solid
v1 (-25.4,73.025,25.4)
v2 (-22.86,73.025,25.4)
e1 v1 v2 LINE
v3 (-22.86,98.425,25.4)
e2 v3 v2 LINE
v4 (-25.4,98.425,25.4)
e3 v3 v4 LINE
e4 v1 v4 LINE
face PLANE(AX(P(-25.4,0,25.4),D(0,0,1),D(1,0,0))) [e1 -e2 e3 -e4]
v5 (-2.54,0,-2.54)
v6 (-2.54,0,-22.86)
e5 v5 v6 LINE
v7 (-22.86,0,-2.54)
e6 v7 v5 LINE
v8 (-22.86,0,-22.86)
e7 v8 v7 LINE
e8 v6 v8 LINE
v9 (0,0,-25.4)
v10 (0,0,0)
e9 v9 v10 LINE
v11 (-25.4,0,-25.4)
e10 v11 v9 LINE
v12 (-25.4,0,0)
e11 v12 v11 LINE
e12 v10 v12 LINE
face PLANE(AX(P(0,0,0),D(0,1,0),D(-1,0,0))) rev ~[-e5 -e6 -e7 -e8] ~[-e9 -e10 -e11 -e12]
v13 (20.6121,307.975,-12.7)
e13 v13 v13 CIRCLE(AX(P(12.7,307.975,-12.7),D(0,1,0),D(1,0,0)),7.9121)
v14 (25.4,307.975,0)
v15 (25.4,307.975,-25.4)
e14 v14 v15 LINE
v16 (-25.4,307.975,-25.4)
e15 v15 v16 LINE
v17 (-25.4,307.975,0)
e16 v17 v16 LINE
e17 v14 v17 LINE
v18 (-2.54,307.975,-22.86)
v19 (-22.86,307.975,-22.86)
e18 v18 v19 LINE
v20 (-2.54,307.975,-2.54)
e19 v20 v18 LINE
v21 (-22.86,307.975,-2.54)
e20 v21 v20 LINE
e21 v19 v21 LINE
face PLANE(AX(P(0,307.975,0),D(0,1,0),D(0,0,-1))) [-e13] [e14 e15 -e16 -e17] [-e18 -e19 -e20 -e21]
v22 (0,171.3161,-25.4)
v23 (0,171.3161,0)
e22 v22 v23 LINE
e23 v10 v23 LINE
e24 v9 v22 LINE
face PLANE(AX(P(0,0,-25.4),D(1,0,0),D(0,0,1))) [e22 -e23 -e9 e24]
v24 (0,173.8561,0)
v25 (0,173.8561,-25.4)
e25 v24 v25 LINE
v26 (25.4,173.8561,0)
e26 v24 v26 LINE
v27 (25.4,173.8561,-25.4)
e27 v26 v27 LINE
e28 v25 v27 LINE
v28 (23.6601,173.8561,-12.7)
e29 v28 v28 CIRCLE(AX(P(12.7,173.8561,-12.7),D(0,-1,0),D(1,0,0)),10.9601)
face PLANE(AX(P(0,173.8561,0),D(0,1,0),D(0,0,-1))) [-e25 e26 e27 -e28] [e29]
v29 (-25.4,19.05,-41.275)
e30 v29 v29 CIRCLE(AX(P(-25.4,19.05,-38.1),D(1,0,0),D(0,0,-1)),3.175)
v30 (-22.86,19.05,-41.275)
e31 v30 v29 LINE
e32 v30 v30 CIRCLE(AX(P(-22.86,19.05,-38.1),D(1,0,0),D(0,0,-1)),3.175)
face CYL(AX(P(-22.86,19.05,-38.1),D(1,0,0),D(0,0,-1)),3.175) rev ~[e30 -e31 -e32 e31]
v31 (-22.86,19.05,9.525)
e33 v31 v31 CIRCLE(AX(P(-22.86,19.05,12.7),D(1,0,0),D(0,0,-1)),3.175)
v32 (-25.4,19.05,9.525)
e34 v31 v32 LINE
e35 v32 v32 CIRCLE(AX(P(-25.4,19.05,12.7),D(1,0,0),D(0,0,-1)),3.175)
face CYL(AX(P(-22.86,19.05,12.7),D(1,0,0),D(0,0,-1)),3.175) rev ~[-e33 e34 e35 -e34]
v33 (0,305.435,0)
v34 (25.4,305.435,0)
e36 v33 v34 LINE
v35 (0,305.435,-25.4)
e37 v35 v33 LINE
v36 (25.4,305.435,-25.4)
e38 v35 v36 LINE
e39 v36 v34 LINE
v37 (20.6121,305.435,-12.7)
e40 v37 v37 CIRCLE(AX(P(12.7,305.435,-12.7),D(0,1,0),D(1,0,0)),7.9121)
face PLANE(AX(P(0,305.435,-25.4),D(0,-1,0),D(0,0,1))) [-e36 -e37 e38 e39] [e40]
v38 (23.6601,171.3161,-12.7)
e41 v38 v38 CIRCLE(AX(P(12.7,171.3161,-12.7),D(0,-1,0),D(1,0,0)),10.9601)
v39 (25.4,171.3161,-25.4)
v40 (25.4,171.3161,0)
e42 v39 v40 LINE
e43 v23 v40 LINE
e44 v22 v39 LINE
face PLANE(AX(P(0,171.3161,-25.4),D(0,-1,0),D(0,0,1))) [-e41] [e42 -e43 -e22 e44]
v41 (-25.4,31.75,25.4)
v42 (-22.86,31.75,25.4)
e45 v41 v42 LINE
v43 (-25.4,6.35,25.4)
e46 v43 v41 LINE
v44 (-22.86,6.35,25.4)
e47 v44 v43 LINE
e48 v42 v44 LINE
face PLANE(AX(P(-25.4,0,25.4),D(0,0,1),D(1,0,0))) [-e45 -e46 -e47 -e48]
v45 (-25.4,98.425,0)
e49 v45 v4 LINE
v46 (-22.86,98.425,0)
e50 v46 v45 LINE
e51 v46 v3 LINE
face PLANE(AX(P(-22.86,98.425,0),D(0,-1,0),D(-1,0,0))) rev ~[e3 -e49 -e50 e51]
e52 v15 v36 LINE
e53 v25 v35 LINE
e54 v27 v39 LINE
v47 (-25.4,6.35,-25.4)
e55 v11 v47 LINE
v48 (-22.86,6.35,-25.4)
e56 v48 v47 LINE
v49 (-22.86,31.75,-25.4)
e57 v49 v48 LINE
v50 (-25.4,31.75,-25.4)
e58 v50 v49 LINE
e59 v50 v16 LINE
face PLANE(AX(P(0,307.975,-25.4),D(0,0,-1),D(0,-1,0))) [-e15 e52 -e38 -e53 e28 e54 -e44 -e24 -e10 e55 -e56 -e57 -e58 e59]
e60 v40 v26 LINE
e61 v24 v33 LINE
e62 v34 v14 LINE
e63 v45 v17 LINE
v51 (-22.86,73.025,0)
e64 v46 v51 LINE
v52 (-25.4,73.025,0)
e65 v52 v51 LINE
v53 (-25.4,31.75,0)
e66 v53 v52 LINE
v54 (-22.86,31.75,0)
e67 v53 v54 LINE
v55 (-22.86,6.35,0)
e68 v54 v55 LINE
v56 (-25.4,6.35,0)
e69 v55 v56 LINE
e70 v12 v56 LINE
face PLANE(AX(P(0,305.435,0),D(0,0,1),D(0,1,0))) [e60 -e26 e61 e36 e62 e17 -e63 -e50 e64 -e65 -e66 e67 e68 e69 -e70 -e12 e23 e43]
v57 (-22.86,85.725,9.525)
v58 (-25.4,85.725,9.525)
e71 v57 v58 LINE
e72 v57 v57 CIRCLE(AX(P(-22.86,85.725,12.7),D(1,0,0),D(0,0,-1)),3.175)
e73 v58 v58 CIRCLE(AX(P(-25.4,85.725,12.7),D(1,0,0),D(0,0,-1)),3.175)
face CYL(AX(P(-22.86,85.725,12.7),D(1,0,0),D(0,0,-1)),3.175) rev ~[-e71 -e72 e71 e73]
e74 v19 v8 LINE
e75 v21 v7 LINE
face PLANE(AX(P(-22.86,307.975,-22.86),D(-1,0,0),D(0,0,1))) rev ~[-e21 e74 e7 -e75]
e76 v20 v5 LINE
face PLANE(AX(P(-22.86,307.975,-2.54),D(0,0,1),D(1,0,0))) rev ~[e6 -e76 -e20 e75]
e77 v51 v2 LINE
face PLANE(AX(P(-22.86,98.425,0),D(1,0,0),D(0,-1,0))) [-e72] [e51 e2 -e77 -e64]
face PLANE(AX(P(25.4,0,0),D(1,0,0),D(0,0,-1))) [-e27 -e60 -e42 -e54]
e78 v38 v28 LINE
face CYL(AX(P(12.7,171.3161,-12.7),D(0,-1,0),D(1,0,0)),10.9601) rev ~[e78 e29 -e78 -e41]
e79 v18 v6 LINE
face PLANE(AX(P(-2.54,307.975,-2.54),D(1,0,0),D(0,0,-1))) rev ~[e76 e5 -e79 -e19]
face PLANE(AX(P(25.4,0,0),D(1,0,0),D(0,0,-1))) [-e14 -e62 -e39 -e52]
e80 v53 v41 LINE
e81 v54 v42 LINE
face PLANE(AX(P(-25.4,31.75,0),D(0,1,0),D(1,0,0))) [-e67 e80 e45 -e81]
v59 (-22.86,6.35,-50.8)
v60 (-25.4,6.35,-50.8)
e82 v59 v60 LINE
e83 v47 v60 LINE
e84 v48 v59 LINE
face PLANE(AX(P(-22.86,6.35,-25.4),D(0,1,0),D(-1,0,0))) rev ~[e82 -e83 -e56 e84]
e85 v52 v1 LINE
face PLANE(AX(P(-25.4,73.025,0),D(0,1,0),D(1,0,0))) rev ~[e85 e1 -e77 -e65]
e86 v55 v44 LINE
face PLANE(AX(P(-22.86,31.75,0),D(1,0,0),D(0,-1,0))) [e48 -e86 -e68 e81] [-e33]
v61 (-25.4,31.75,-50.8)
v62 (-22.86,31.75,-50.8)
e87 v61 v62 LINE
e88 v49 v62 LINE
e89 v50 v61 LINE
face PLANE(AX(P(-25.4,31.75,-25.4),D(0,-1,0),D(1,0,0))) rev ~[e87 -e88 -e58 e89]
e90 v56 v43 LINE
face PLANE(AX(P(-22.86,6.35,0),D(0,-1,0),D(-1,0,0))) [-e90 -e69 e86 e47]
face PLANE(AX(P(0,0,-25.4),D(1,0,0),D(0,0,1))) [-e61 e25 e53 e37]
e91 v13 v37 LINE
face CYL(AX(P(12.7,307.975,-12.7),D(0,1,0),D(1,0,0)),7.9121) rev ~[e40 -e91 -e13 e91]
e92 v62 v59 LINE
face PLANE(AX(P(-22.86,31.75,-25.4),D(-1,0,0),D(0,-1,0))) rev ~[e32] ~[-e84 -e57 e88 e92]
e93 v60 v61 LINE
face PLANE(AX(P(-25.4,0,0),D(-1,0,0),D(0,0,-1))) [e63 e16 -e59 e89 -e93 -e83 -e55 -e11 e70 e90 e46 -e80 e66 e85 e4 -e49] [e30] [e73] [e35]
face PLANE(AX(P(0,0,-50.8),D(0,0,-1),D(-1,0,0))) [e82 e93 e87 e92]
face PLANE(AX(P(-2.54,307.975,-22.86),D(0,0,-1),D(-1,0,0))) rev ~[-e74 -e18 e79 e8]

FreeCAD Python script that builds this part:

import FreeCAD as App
import Part
import Sketcher
from FreeCAD import Vector
Q = App.Units.Quantity

doc = App.newDocument("Part")
body = doc.addObject("PartDesign::Body", "Body")

# Sketch on XZ plane
sketch1 = body.newObject("Sketcher::SketchObject", "Sketch")
sketch1.AttachmentSupport = (doc.getObject("XZ_Plane"), [""])
sketch1.MapMode = "FlatFace"
sketch1.addGeometry(Part.LineSegment(Vector(-25, 0, 0), Vector(0, 0, 0)), False)
sketch1.addGeometry(Part.LineSegment(Vector(0, 0, 0), Vector(0, -25, 0)), False)
sketch1.addGeometry(Part.LineSegment(Vector(0, -25, 0), Vector(-25, -25, 0)), False)
sketch1.addGeometry(Part.LineSegment(Vector(-25, -25, 0), Vector(-25, 0, 0)), False)
sketch1.addConstraint(Sketcher.Constraint("Coincident", 0, 2, 1, 1))
sketch1.addConstraint(Sketcher.Constraint("Coincident", 1, 2, 2, 1))
sketch1.addConstraint(Sketcher.Constraint("Coincident", 2, 2, 3, 1))
sketch1.addConstraint(Sketcher.Constraint("Coincident", 3, 2, 0, 1))
sketch1.addConstraint(Sketcher.Constraint("Horizontal", 0))
sketch1.addConstraint(Sketcher.Constraint("Vertical", 1))
sketch1.addConstraint(Sketcher.Constraint("Horizontal", 2))
sketch1.addConstraint(Sketcher.Constraint("Vertical", 3))
sketch1.addConstraint(Sketcher.Constraint("Coincident", 0, 2, -1, 1))
sketch1.addConstraint(Sketcher.Constraint("Equal", 2, 1))
sketch1.addConstraint(Sketcher.Constraint("DistanceX", 0, 1, 0, 2, Q("1 in")))
pad1 = body.newObject("PartDesign::Pad", "Pad")
pad1.Profile = sketch1
pad1.Length = Q("12.125 in")
pad1.Reversed = True

# Sketch on XZ plane
sketch2 = body.newObject("Sketcher::SketchObject", "Sketch001")
sketch2.AttachmentSupport = (doc.getObject("XZ_Plane"), [""])
sketch2.MapMode = "FlatFace"
sketch2.AttachmentOffset = App.Placement(Vector(0, 0, -12.125 * 25.4), App.Rotation())
sketch2.addGeometry(Part.LineSegment(Vector(-23, -23, 0), Vector(-23, -3, 0)), False)
sketch2.addGeometry(Part.LineSegment(Vector(-23, -3, 0), Vector(-3, -3, 0)), False)
sketch2.addGeometry(Part.LineSegment(Vector(-3, -3, 0), Vector(-3, -23, 0)), False)
sketch2.addGeometry(Part.LineSegment(Vector(-3, -23, 0), Vector(-23, -23, 0)), False)
sketch2.addConstraint(Sketcher.Constraint("Coincident", 0, 2, 1, 1))
sketch2.addConstraint(Sketcher.Constraint("Coincident", 1, 2, 2, 1))
sketch2.addConstraint(Sketcher.Constraint("Coincident", 2, 2, 3, 1))
sketch2.addConstraint(Sketcher.Constraint("Coincident", 3, 2, 0, 1))
sketch2.addConstraint(Sketcher.Constraint("Vertical", 0))
sketch2.addConstraint(Sketcher.Constraint("Horizontal", 1))
sketch2.addConstraint(Sketcher.Constraint("Vertical", 2))
sketch2.addConstraint(Sketcher.Constraint("Horizontal", 3))
sketch2.addConstraint(Sketcher.Constraint("Equal", 3, 0))
sketch2.addConstraint(Sketcher.Constraint("DistanceX", 1, 1, 1, 2, Q("0.8 in")))
sketch2.addConstraint(Sketcher.Constraint("DistanceY", 0, 2, -1, 1, Q("0.1 in")))
sketch2.addConstraint(Sketcher.Constraint("DistanceX", 1, 2, -1, 1, Q("0.1 in")))
pocket1 = body.newObject("PartDesign::Pocket", "Pocket")
pocket1.Profile = sketch2
pocket1.Length = Q("12.125 in")
pocket1.Reversed = True

# Sketch on YZ plane
sketch3 = body.newObject("Sketcher::SketchObject", "Sketch002")
sketch3.AttachmentSupport = (doc.getObject("YZ_Plane"), [""])
sketch3.MapMode = "FlatFace"
sketch3.addGeometry(Part.LineSegment(Vector(308, 0, 0), Vector(305.4, 0, 0)), False)
sketch3.addGeometry(Part.LineSegment(Vector(305.4, 0, 0), Vector(305.4, -25.4, 0)), False)
sketch3.addGeometry(Part.LineSegment(Vector(305.4, -25.4, 0), Vector(308, -25.4, 0)), False)
sketch3.addGeometry(Part.LineSegment(Vector(308, -25.4, 0), Vector(308, 0, 0)), False)
sketch3.addConstraint(Sketcher.Constraint("Coincident", 0, 2, 1, 1))
sketch3.addConstraint(Sketcher.Constraint("Coincident", 1, 2, 2, 1))
sketch3.addConstraint(Sketcher.Constraint("Coincident", 2, 2, 3, 1))
sketch3.addConstraint(Sketcher.Constraint("Coincident", 3, 2, 0, 1))
sketch3.addConstraint(Sketcher.Constraint("Horizontal", 0))
sketch3.addConstraint(Sketcher.Constraint("Vertical", 1))
sketch3.addConstraint(Sketcher.Constraint("Horizontal", 2))
sketch3.addConstraint(Sketcher.Constraint("Vertical", 3))
sketch3.addConstraint(Sketcher.Constraint("PointOnObject", 0, 2, -1))
sketch3.addConstraint(Sketcher.Constraint("DistanceY", 1, 2, 1, 1, Q("1 in")))
sketch3.addConstraint(Sketcher.Constraint("DistanceX", 0, 2, 0, 1, Q("0.1 in")))
sketch3.addConstraint(Sketcher.Constraint("DistanceX", -1, 1, 0, 2, Q("12.025 in")))
pad2 = body.newObject("PartDesign::Pad", "Pad001")
pad2.Profile = sketch3
pad2.Length = Q("1 in")

# Sketch on XZ plane
sketch4 = body.newObject("Sketcher::SketchObject", "Sketch003")
sketch4.AttachmentSupport = (doc.getObject("XZ_Plane"), [""])
sketch4.MapMode = "FlatFace"
sketch4.AttachmentOffset = App.Placement(Vector(0, 0, -12.125 * 25.4), App.Rotation())
sketch4.addGeometry(Part.Circle(Vector(13, -13, 0), Vector(0, 0, 1), 8), False)
sketch4.addConstraint(Sketcher.Constraint("Diameter", 0, Q("0.623 in")))
sketch4.addConstraint(Sketcher.Constraint("DistanceX", -1, 1, 0, 3, Q("0.5 in")))
sketch4.addConstraint(Sketcher.Constraint("DistanceY", 0, 3, -1, 1, Q("0.5 in")))
pocket2 = body.newObject("PartDesign::Pocket", "Pocket001")
pocket2.Profile = sketch4
pocket2.Length = Q("1 in")
pocket2.Reversed = True

# Sketch on YZ plane
sketch5 = body.newObject("Sketcher::SketchObject", "Sketch004")
sketch5.AttachmentSupport = (doc.getObject("YZ_Plane"), [""])
sketch5.MapMode = "FlatFace"
sketch5.addGeometry(Part.LineSegment(Vector(173.9, -25.4, 0), Vector(173.9, 0, 0)), False)
sketch5.addGeometry(Part.LineSegment(Vector(173.9, 0, 0), Vector(171.3, 0, 0)), False)
sketch5.addGeometry(Part.LineSegment(Vector(171.3, 0, 0), Vector(171.3, -25.4, 0)), False)
sketch5.addGeometry(Part.LineSegment(Vector(171.3, -25.4, 0), Vector(173.9, -25.4, 0)), False)
sketch5.addConstraint(Sketcher.Constraint("Coincident", 0, 2, 1, 1))
sketch5.addConstraint(Sketcher.Constraint("Coincident", 1, 2, 2, 1))
sketch5.addConstraint(Sketcher.Constraint("Coincident", 2, 2, 3, 1))
sketch5.addConstraint(Sketcher.Constraint("Coincident", 3, 2, 0, 1))
sketch5.addConstraint(Sketcher.Constraint("Vertical", 0))
sketch5.addConstraint(Sketcher.Constraint("Horizontal", 1))
sketch5.addConstraint(Sketcher.Constraint("Vertical", 2))
sketch5.addConstraint(Sketcher.Constraint("Horizontal", 3))
sketch5.addConstraint(Sketcher.Constraint("PointOnObject", 0, 2, -1))
sketch5.addConstraint(Sketcher.Constraint("DistanceY", 0, 1, 0, 2, Q("1 in")))
sketch5.addConstraint(Sketcher.Constraint("DistanceX", 1, 2, 1, 1, Q("0.1 in")))
sketch5.addConstraint(Sketcher.Constraint("DistanceX", -1, 1, 0, 2, 173.856))
pad3 = body.newObject("PartDesign::Pad", "Pad002")
pad3.Profile = sketch5
pad3.Length = Q("1 in")

# Sketch on XZ plane
sketch6 = body.newObject("Sketcher::SketchObject", "Sketch005")
sketch6.AttachmentSupport = (doc.getObject("XZ_Plane"), [""])
sketch6.MapMode = "FlatFace"
sketch6.AttachmentOffset = App.Placement(Vector(0, 0, -171.3161), App.Rotation())
sketch6.addGeometry(Part.Circle(Vector(13, -13, 0), Vector(0, 0, 1), 11), False)
sketch6.addConstraint(Sketcher.Constraint("Diameter", 0, Q("0.863 in")))
sketch6.addConstraint(Sketcher.Constraint("DistanceX", -1, 1, 0, 3, Q("0.5 in")))
sketch6.addConstraint(Sketcher.Constraint("DistanceY", 0, 3, -1, 1, Q("0.5 in")))
pocket3 = body.newObject("PartDesign::Pocket", "Pocket002")
pocket3.Profile = sketch6
pocket3.Length = Q("1 in")

# Sketch on XY plane
sketch7 = body.newObject("Sketcher::SketchObject", "Sketch006")
sketch7.AttachmentSupport = (doc.getObject("XY_Plane"), [""])
sketch7.MapMode = "FlatFace"
sketch7.AttachmentOffset = App.Placement(Vector(0, 0, -1 * 25.4), App.Rotation())
sketch7.addGeometry(Part.LineSegment(Vector(-22.9, 6.3, 0), Vector(-25.4, 6.3, 0)), False)
sketch7.addGeometry(Part.LineSegment(Vector(-25.4, 6.3, 0), Vector(-25.4, 31.8, 0)), False)
sketch7.addGeometry(Part.LineSegment(Vector(-25.4, 31.8, 0), Vector(-22.9, 31.8, 0)), False)
sketch7.addGeometry(Part.LineSegment(Vector(-22.9, 31.8, 0), Vector(-22.9, 6.3, 0)), False)
sketch7.addConstraint(Sketcher.Constraint("Coincident", 0, 2, 1, 1))
sketch7.addConstraint(Sketcher.Constraint("Coincident", 1, 2, 2, 1))
sketch7.addConstraint(Sketcher.Constraint("Coincident", 2, 2, 3, 1))
sketch7.addConstraint(Sketcher.Constraint("Coincident", 3, 2, 0, 1))
sketch7.addConstraint(Sketcher.Constraint("Horizontal", 0))
sketch7.addConstraint(Sketcher.Constraint("Vertical", 1))
sketch7.addConstraint(Sketcher.Constraint("Horizontal", 2))
sketch7.addConstraint(Sketcher.Constraint("Vertical", 3))
sketch7.addConstraint(Sketcher.Constraint("DistanceY", 1, 1, 1, 2, Q("1 in")))
sketch7.addConstraint(Sketcher.Constraint("DistanceX", 0, 2, 0, 1, Q("0.1 in")))
sketch7.addConstraint(Sketcher.Constraint("DistanceX", 0, 2, -1, 1, Q("1 in")))
sketch7.addConstraint(Sketcher.Constraint("DistanceY", -1, 1, 1, 2, Q("1.25 in")))
pad4 = body.newObject("PartDesign::Pad", "Pad003")
pad4.Profile = sketch7
pad4.Length = Q("1 in")
pad4.Reversed = True

# Sketch on YZ plane
sketch8 = body.newObject("Sketcher::SketchObject", "Sketch007")
sketch8.AttachmentSupport = (doc.getObject("YZ_Plane"), [""])
sketch8.MapMode = "FlatFace"
sketch8.AttachmentOffset = App.Placement(Vector(0, 0, -0.9 * 25.4), App.Rotation())
sketch8.addGeometry(Part.Circle(Vector(19.1, -38.1, 0), Vector(0, 0, 1), 3.2), False)
sketch8.addConstraint(Sketcher.Constraint("Diameter", 0, Q("0.25 in")))
sketch8.addConstraint(Sketcher.Constraint("DistanceY", 0, 3, -1, 1, Q("1.5 in")))
sketch8.addConstraint(Sketcher.Constraint("DistanceX", -1, 1, 0, 3, Q("0.75 in")))
pocket4 = body.newObject("PartDesign::Pocket", "Pocket003")
pocket4.Profile = sketch8
pocket4.Length = Q("1 in")

# Sketch on XY plane
sketch9 = body.newObject("Sketcher::SketchObject", "Sketch008")
sketch9.AttachmentSupport = (doc.getObject("XY_Plane"), [""])
sketch9.MapMode = "FlatFace"
sketch9.addGeometry(Part.LineSegment(Vector(-25.4, 31.8, 0), Vector(-25.4, 6.3, 0)), False)
sketch9.addGeometry(Part.LineSegment(Vector(-25.4, 6.3, 0), Vector(-22.9, 6.3, 0)), False)
sketch9.addGeometry(Part.LineSegment(Vector(-22.9, 6.3, 0), Vector(-22.9, 31.8, 0)), False)
sketch9.addGeometry(Part.LineSegment(Vector(-22.9, 31.8, 0), Vector(-25.4, 31.8, 0)), False)
sketch9.addGeometry(Part.LineSegment(Vector(-25.4, 98.4, 0), Vector(-25.4, 73, 0)), False)
sketch9.addGeometry(Part.LineSegment(Vector(-25.4, 73, 0), Vector(-22.9, 73, 0)), False)
sketch9.addGeometry(Part.LineSegment(Vector(-22.9, 73, 0), Vector(-22.9, 98.4, 0)), False)
sketch9.addGeometry(Part.LineSegment(Vector(-22.9, 98.4, 0), Vector(-25.4, 98.4, 0)), False)
sketch9.addConstraint(Sketcher.Constraint("Coincident", 0, 2, 1, 1))
sketch9.addConstraint(Sketcher.Constraint("Coincident", 1, 2, 2, 1))
sketch9.addConstraint(Sketcher.Constraint("Coincident", 2, 2, 3, 1))
sketch9.addConstraint(Sketcher.Constraint("Coincident", 3, 2, 0, 1))
sketch9.addConstraint(Sketcher.Constraint("Coincident", 4, 2, 5, 1))
sketch9.addConstraint(Sketcher.Constraint("Coincident", 5, 2, 6, 1))
sketch9.addConstraint(Sketcher.Constraint("Coincident", 6, 2, 7, 1))
sketch9.addConstraint(Sketcher.Constraint("Coincident", 7, 2, 4, 1))
sketch9.addConstraint(Sketcher.Constraint("Vertical", 0))
sketch9.addConstraint(Sketcher.Constraint("Horizontal", 1))
sketch9.addConstraint(Sketcher.Constraint("Vertical", 2))
sketch9.addConstraint(Sketcher.Constraint("Horizontal", 3))
sketch9.addConstraint(Sketcher.Constraint("Vertical", 4))
sketch9.addConstraint(Sketcher.Constraint("Horizontal", 5))
sketch9.addConstraint(Sketcher.Constraint("Vertical", 6))
sketch9.addConstraint(Sketcher.Constraint("Horizontal", 7))
sketch9.addConstraint(Sketcher.Constraint("Vertical", 3, 2, 4, 2))
sketch9.addConstraint(Sketcher.Constraint("Vertical", 2, 2, 5, 2))
sketch9.addConstraint(Sketcher.Constraint("Equal", 2, 4))
sketch9.addConstraint(Sketcher.Constraint("DistanceY", 0, 2, 0, 1, Q("1 in")))
sketch9.addConstraint(Sketcher.Constraint("DistanceX", 1, 1, 1, 2, Q("0.1 in")))
sketch9.addConstraint(Sketcher.Constraint("DistanceX", 0, 2, -1, 1, Q("1 in")))
sketch9.addConstraint(Sketcher.Constraint("DistanceY", -1, 1, 0, 2, Q("0.25 in")))
sketch9.addConstraint(Sketcher.Constraint("DistanceY", 3, 2, 4, 2, Q("1.625 in")))
pad5 = body.newObject("PartDesign::Pad", "Pad004")
pad5.Profile = sketch9
pad5.Length = Q("1 in")

# Sketch on YZ plane
sketch10 = body.newObject("Sketcher::SketchObject", "Sketch009")
sketch10.AttachmentSupport = (doc.getObject("YZ_Plane"), [""])
sketch10.MapMode = "FlatFace"
sketch10.AttachmentOffset = App.Placement(Vector(0, 0, -0.9 * 25.4), App.Rotation())
sketch10.addGeometry(Part.Circle(Vector(19.1, 12.7, 0), Vector(0, 0, 1), 3.2), False)
sketch10.addGeometry(Part.Circle(Vector(85.7, 12.7, 0), Vector(0, 0, 1), 3.2), False)
sketch10.addConstraint(Sketcher.Constraint("Equal", 0, 1))
sketch10.addConstraint(Sketcher.Constraint("Horizontal", 0, 3, 1, 3))
sketch10.addConstraint(Sketcher.Constraint("Diameter", 0, Q("0.25 in")))
sketch10.addConstraint(Sketcher.Constraint("DistanceY", -1, 1, 0, 3, Q("0.5 in")))
sketch10.addConstraint(Sketcher.Constraint("DistanceX", -1, 1, 0, 3, Q("0.75 in")))
sketch10.addConstraint(Sketcher.Constraint("DistanceX", -1, 1, 1, 3, Q("3.375 in")))
pocket5 = body.newObject("PartDesign::Pocket", "Pocket004")
pocket5.Profile = sketch10
pocket5.Length = Q("1 in")

doc.recompute()
